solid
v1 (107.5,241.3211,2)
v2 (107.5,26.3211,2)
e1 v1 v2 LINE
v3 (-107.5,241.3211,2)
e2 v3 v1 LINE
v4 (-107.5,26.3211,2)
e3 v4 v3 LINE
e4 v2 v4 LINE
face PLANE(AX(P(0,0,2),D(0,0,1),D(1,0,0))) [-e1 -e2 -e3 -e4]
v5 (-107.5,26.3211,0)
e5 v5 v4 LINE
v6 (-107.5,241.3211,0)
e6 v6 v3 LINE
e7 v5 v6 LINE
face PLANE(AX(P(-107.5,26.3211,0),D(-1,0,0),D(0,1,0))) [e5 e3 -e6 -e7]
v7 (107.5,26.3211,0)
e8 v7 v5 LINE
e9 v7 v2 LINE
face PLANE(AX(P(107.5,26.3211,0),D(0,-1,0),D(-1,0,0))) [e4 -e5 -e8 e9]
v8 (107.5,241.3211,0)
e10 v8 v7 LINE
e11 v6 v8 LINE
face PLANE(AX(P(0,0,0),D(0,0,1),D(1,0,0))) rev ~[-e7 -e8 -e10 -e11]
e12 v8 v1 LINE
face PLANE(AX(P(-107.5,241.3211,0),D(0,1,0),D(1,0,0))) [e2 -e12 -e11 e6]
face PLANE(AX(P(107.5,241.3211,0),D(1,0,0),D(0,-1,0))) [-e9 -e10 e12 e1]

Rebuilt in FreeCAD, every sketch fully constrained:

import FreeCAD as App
import Part
import Sketcher

V = App.Vector
Q = App.Units.Quantity

doc = App.newDocument("Part")
body = doc.addObject("PartDesign::Body", "Body")

# Sketch on XY plane
sketch1 = body.newObject("Sketcher::SketchObject", "Sketch")
sketch1.AttachmentSupport = (doc.getObject("XY_Plane"), [""])
sketch1.MapMode = "FlatFace"
sketch1.addGeometry([
    Part.LineSegment(V(-108, 26, 0), V(108, 26, 0)),
    Part.LineSegment(V(108, 26, 0), V(108, 241, 0)),
    Part.LineSegment(V(108, 241, 0), V(-108, 241, 0)),
    Part.LineSegment(V(-108, 241, 0), V(-108, 26, 0)),
], False)
sketch1.addConstraint([
    Sketcher.Constraint("Coincident", 0, 2, 1, 1),
    Sketcher.Constraint("Coincident", 1, 2, 2, 1),
    Sketcher.Constraint("Coincident", 2, 2, 3, 1),
    Sketcher.Constraint("Coincident", 3, 2, 0, 1),
    Sketcher.Constraint("Horizontal", 0),
    Sketcher.Constraint("Vertical", 1),
    Sketcher.Constraint("Horizontal", 2),
    Sketcher.Constraint("Vertical", 3),
    Sketcher.Constraint("Equal", 2, 1),
    Sketcher.Constraint("DistanceX", 0, 1, 0, 2, Q("215 mm")),
    Sketcher.Constraint("DistanceX", -1, 1, 0, 2, Q("107.5 mm")),
    Sketcher.Constraint("DistanceY", -1, 1, 0, 2, Q("26.321 mm")),
])
pad1 = body.newObject("PartDesign::Pad", "Pad")
pad1.Profile = sketch1
pad1.Length = 2

doc.recompute()
